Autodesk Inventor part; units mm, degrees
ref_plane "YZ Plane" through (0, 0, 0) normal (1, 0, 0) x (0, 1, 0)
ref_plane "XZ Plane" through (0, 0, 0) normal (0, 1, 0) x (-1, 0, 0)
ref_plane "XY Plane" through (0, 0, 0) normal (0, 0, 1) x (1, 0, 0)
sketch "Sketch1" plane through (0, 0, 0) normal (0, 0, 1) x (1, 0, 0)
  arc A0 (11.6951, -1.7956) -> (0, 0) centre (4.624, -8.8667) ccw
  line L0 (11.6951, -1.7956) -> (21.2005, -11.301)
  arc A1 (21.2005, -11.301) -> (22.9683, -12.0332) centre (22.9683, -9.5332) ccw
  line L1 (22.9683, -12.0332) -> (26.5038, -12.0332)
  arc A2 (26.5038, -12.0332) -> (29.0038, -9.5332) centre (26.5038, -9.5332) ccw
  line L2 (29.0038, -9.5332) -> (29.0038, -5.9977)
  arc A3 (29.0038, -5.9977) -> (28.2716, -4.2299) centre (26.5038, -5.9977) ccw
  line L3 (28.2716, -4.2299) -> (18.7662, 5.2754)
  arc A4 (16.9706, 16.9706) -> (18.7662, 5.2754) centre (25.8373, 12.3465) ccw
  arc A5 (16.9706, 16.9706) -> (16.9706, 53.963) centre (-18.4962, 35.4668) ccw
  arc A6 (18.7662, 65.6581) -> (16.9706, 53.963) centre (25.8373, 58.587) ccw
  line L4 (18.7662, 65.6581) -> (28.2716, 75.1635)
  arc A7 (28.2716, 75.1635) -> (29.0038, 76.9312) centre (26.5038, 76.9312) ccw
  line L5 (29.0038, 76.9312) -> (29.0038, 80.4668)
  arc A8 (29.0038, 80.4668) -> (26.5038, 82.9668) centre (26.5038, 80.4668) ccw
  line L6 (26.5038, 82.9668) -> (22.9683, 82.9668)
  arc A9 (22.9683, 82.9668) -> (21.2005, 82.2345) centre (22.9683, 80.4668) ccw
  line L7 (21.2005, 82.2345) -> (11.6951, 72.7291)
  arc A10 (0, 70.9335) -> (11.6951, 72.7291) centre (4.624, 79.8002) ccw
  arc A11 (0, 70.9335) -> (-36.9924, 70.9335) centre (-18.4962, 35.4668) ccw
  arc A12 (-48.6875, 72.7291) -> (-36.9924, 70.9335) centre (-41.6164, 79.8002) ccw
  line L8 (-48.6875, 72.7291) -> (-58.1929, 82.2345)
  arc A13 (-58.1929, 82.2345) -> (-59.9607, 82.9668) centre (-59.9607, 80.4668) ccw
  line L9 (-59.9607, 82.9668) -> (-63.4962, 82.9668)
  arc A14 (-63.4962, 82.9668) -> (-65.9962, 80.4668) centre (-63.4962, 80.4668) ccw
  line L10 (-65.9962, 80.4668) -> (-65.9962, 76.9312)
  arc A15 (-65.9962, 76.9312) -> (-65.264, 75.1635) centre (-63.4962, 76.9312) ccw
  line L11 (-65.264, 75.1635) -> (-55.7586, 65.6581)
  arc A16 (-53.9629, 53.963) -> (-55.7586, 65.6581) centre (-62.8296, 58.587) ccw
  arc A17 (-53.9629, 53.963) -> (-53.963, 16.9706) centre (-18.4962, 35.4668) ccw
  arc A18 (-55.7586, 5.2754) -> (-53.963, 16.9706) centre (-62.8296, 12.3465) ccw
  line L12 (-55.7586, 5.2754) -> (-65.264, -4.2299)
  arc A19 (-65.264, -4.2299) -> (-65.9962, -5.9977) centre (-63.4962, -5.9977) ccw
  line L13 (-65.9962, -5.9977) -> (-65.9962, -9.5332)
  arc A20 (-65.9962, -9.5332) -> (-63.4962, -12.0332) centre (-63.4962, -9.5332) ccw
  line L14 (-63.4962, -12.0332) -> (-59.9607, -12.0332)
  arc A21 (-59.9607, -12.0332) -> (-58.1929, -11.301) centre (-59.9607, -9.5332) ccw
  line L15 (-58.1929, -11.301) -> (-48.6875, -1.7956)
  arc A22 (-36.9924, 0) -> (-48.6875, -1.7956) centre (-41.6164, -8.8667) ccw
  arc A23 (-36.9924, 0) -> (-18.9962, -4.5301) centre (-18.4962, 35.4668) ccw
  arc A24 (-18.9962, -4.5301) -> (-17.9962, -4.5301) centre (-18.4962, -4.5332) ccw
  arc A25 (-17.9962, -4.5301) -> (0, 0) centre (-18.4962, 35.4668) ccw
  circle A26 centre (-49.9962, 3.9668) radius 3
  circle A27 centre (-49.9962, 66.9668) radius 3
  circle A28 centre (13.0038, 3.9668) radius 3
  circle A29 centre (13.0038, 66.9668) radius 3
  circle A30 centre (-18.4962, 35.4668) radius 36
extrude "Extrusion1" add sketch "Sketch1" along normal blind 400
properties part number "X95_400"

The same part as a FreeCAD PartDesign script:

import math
import FreeCAD as App
import Part
import Sketcher

V = App.Vector
Q = App.Units.Quantity

doc = App.newDocument("Part")
body = doc.addObject("PartDesign::Body", "Body")

sketch1 = body.newObject("Sketcher::SketchObject", "Sketch")
sketch1.AttachmentSupport = (doc.getObject("XY_Plane"), [""])
sketch1.MapMode = "FlatFace"
sketch1.addGeometry([
    Part.ArcOfCircle(Part.Circle(V(4.6, -8.9, 0), V(0, 0, 1), 10), math.radians(45), math.radians(118)),
    Part.LineSegment(V(11.7, -1.8, 0), V(21.2, -11.3, 0)),
    Part.ArcOfCircle(Part.Circle(V(23, -9.5, 0), V(0, 0, 1), 2.5), math.radians(-135), math.radians(-90)),
    Part.LineSegment(V(23, -12, 0), V(26.5, -12, 0)),
    Part.ArcOfCircle(Part.Circle(V(26.5, -9.5, 0), V(0, 0, 1), 2.5), math.radians(-90), math.radians(0)),
    Part.LineSegment(V(29, -9.5, 0), V(29, -6, 0)),
    Part.ArcOfCircle(Part.Circle(V(26.5, -6, 0), V(0, 0, 1), 2.5), math.radians(0), math.radians(45)),
    Part.LineSegment(V(28.3, -4.2, 0), V(18.8, 5.3, 0)),
    Part.ArcOfCircle(Part.Circle(V(25.8, 12.3, 0), V(0, 0, 1), 10), math.radians(152), math.radians(225)),
    Part.ArcOfCircle(Part.Circle(V(-18.5, 35.5, 0), V(0, 0, 1), 40), math.radians(-28), math.radians(28)),
    Part.ArcOfCircle(Part.Circle(V(25.8, 58.6, 0), V(0, 0, 1), 10), math.radians(135), math.radians(208)),
    Part.LineSegment(V(18.8, 65.7, 0), V(28.3, 75.2, 0)),
    Part.ArcOfCircle(Part.Circle(V(26.5, 76.9, 0), V(0, 0, 1), 2.5), math.radians(-45), math.radians(0)),
    Part.LineSegment(V(29, 76.9, 0), V(29, 80.5, 0)),
    Part.ArcOfCircle(Part.Circle(V(26.5, 80.5, 0), V(0, 0, 1), 2.5), math.radians(0), math.radians(90)),
    Part.LineSegment(V(26.5, 83, 0), V(23, 83, 0)),
    Part.ArcOfCircle(Part.Circle(V(23, 80.5, 0), V(0, 0, 1), 2.5), math.radians(90), math.radians(135)),
    Part.LineSegment(V(21.2, 82.2, 0), V(11.7, 72.7, 0)),
    Part.ArcOfCircle(Part.Circle(V(4.6, 79.8, 0), V(0, 0, 1), 10), math.radians(-118), math.radians(-45)),
    Part.ArcOfCircle(Part.Circle(V(-18.5, 35.5, 0), V(0, 0, 1), 40), math.radians(62), math.radians(118)),
    Part.ArcOfCircle(Part.Circle(V(-41.6, 79.8, 0), V(0, 0, 1), 10), math.radians(-135), math.radians(-62)),
    Part.LineSegment(V(-48.7, 72.7, 0), V(-58.2, 82.2, 0)),
    Part.ArcOfCircle(Part.Circle(V(-60, 80.5, 0), V(0, 0, 1), 2.5), math.radians(45), math.radians(90)),
    Part.LineSegment(V(-60, 83, 0), V(-63.5, 83, 0)),
    Part.ArcOfCircle(Part.Circle(V(-63.5, 80.5, 0), V(0, 0, 1), 2.5), math.radians(90), math.radians(180)),
    Part.LineSegment(V(-66, 80.5, 0), V(-66, 76.9, 0)),
    Part.ArcOfCircle(Part.Circle(V(-63.5, 76.9, 0), V(0, 0, 1), 2.5), math.radians(180), math.radians(225)),
    Part.LineSegment(V(-65.3, 75.2, 0), V(-55.8, 65.7, 0)),
    Part.ArcOfCircle(Part.Circle(V(-62.8, 58.6, 0), V(0, 0, 1), 10), math.radians(-28), math.radians(45)),
    Part.ArcOfCircle(Part.Circle(V(-18.5, 35.5, 0), V(0, 0, 1), 40), math.radians(152), math.radians(208)),
    Part.ArcOfCircle(Part.Circle(V(-62.8, 12.3, 0), V(0, 0, 1), 10), math.radians(-45), math.radians(28)),
    Part.LineSegment(V(-55.8, 5.3, 0), V(-65.3, -4.2, 0)),
    Part.ArcOfCircle(Part.Circle(V(-63.5, -6, 0), V(0, 0, 1), 2.5), math.radians(135), math.radians(180)),
    Part.LineSegment(V(-66, -6, 0), V(-66, -9.5, 0)),
    Part.ArcOfCircle(Part.Circle(V(-63.5, -9.5, 0), V(0, 0, 1), 2.5), math.radians(180), math.radians(270)),
    Part.LineSegment(V(-63.5, -12, 0), V(-60, -12, 0)),
    Part.ArcOfCircle(Part.Circle(V(-60, -9.5, 0), V(0, 0, 1), 2.5), math.radians(-90), math.radians(-45)),
    Part.LineSegment(V(-58.2, -11.3, 0), V(-48.7, -1.8, 0)),
    Part.ArcOfCircle(Part.Circle(V(-41.6, -8.9, 0), V(0, 0, 1), 10), math.radians(62), math.radians(135)),
    Part.ArcOfCircle(Part.Circle(V(-18.5, 35.5, 0), V(0, 0, 1), 40), math.radians(-118), math.radians(-91)),
    Part.ArcOfCircle(Part.Circle(V(-18.5, -4.5, 0), V(0, 0, 1), 0.5), math.radians(180), math.radians(360)),
    Part.ArcOfCircle(Part.Circle(V(-18.5, 35.5, 0), V(0, 0, 1), 40), math.radians(-89), math.radians(-62)),
    Part.Circle(V(-50, 4, 0), V(0, 0, 1), 3),
    Part.Circle(V(13, 4, 0), V(0, 0, 1), 3),
    Part.Circle(V(-50, 67, 0), V(0, 0, 1), 3),
    Part.Circle(V(-18.5, 35.5, 0), V(0, 0, 1), 36),
    Part.Circle(V(13, 67, 0), V(0, 0, 1), 3),
], False)
sketch1.addConstraint([
    Sketcher.Constraint("Tangent", 0, 1, 1, 1),
    Sketcher.Constraint("Tangent", 1, 2, 2, 1),
    Sketcher.Constraint("Tangent", 2, 2, 3, 1),
    Sketcher.Constraint("Tangent", 3, 2, 4, 1),
    Sketcher.Constraint("Tangent", 4, 2, 5, 1),
    Sketcher.Constraint("Tangent", 5, 2, 6, 1),
    Sketcher.Constraint("Tangent", 6, 2, 7, 1),
    Sketcher.Constraint("Tangent", 7, 2, 8, 2),
    Sketcher.Constraint("Tangent", 8, 1, 9, 1),
    Sketcher.Constraint("Tangent", 9, 2, 10, 2),
    Sketcher.Constraint("Tangent", 10, 1, 11, 1),
    Sketcher.Constraint("Tangent", 11, 2, 12, 1),
    Sketcher.Constraint("Tangent", 12, 2, 13, 1),
    Sketcher.Constraint("Tangent", 13, 2, 14, 1),
    Sketcher.Constraint("Tangent", 14, 2, 15, 1),
    Sketcher.Constraint("Tangent", 15, 2, 16, 1),
    Sketcher.Constraint("Tangent", 16, 2, 17, 1),
    Sketcher.Constraint("Tangent", 17, 2, 18, 2),
    Sketcher.Constraint("Tangent", 18, 1, 19, 1),
    Sketcher.Constraint("Tangent", 19, 2, 20, 2),
    Sketcher.Constraint("Tangent", 20, 1, 21, 1),
    Sketcher.Constraint("Tangent", 21, 2, 22, 1),
    Sketcher.Constraint("Tangent", 22, 2, 23, 1),
    Sketcher.Constraint("Tangent", 23, 2, 24, 1),
    Sketcher.Constraint("Tangent", 24, 2, 25, 1),
    Sketcher.Constraint("Tangent", 25, 2, 26, 1),
    Sketcher.Constraint("Tangent", 26, 2, 27, 1),
    Sketcher.Constraint("Tangent", 27, 2, 28, 2),
    Sketcher.Constraint("Tangent", 28, 1, 29, 1),
    Sketcher.Constraint("Tangent", 29, 2, 30, 2),
    Sketcher.Constraint("Tangent", 30, 1, 31, 1),
    Sketcher.Constraint("Tangent", 31, 2, 32, 1),
    Sketcher.Constraint("Tangent", 32, 2, 33, 1),
    Sketcher.Constraint("Tangent", 33, 2, 34, 1),
    Sketcher.Constraint("Tangent", 34, 2, 35, 1),
    Sketcher.Constraint("Tangent", 35, 2, 36, 1),
    Sketcher.Constraint("Tangent", 36, 2, 37, 1),
    Sketcher.Constraint("Tangent", 37, 2, 38, 2),
    Sketcher.Constraint("Tangent", 38, 1, 39, 1),
    Sketcher.Constraint("Coincident", 39, 2, 40, 1),
    Sketcher.Constraint("Coincident", 40, 2, 41, 1),
    Sketcher.Constraint("Tangent", 41, 2, 0, 2),
    Sketcher.Constraint("Horizontal", 3),
    Sketcher.Constraint("Vertical", 5),
    Sketcher.Constraint("Vertical", 13),
    Sketcher.Constraint("Horizontal", 15),
    Sketcher.Constraint("Horizontal", 23),
    Sketcher.Constraint("Vertical", 25),
    Sketcher.Constraint("Vertical", 33),
    Sketcher.Constraint("Horizontal", 35),
    Sketcher.Constraint("Coincident", 41, 2, -1, 1),
    Sketcher.Constraint("Coincident", 19, 3, 9, 3),
    Sketcher.Constraint("Coincident", 29, 3, 9, 3),
    Sketcher.Constraint("Coincident", 39, 3, 9, 3),
    Sketcher.Constraint("Coincident", 41, 3, 9, 3),
    Sketcher.Constraint("Coincident", 45, 3, 9, 3),
    Sketcher.Constraint("Equal", 2, 4),
    Sketcher.Constraint("Equal", 4, 6),
    Sketcher.Constraint("Equal", 0, 8),
    Sketcher.Constraint("Equal", 8, 10),
    Sketcher.Constraint("Equal", 6, 12),
    Sketcher.Constraint("Equal", 12, 14),
    Sketcher.Constraint("Equal", 14, 16),
    Sketcher.Constraint("Equal", 10, 18),
    Sketcher.Constraint("Equal", 9, 19),
    Sketcher.Constraint("Equal", 18, 20),
    Sketcher.Constraint("Equal", 16, 22),
    Sketcher.Constraint("Equal", 22, 24),
    Sketcher.Constraint("Equal", 24, 26),
    Sketcher.Constraint("Equal", 20, 28),
    Sketcher.Constraint("Equal", 19, 29),
    Sketcher.Constraint("Equal", 28, 30),
    Sketcher.Constraint("Equal", 26, 32),
    Sketcher.Constraint("Equal", 32, 34),
    Sketcher.Constraint("Equal", 34, 36),
    Sketcher.Constraint("Equal", 30, 38),
    Sketcher.Constraint("Equal", 29, 39),
    Sketcher.Constraint("Equal", 39, 41),
    Sketcher.Constraint("Equal", 42, 43),
    Sketcher.Constraint("Equal", 43, 44),
    Sketcher.Constraint("Equal", 44, 46),
    Sketcher.Constraint("PointOnObject", 18, 1, -2),
    Sketcher.Constraint("PointOnObject", 38, 1, -1),
    Sketcher.Constraint("Parallel", 1, 7),
    Sketcher.Constraint("Perpendicular", 7, 11),
    Sketcher.Constraint("Parallel", 11, 17),
    Sketcher.Constraint("Perpendicular", 17, 21),
    Sketcher.Constraint("Parallel", 21, 27),
    Sketcher.Constraint("Perpendicular", 27, 31),
    Sketcher.Constraint("Parallel", 31, 37),
    Sketcher.Constraint("Horizontal", 18, 3, 20, 3),
    Sketcher.Constraint("Horizontal", 16, 3, 22, 3),
    Sketcher.Constraint("Horizontal", 12, 3, 26, 3),
    Sketcher.Constraint("Horizontal", 10, 3, 28, 3),
    Sketcher.Constraint("Horizontal", 8, 3, 30, 3),
    Sketcher.Constraint("Horizontal", 6, 3, 32, 3),
    Sketcher.Constraint("Horizontal", 4, 3, 34, 3),
    Sketcher.Constraint("Horizontal", 42, 3, 43, 3),
    Sketcher.Constraint("Horizontal", 44, 3, 46, 3),
    Sketcher.Constraint("Horizontal", 17, 2, 20, 1),
    Sketcher.Constraint("Horizontal", 39, 2, 40, 2),
    Sketcher.Constraint("Vertical", 8, 3, 10, 3),
    Sketcher.Constraint("Vertical", 6, 3, 12, 3),
    Sketcher.Constraint("Vertical", 2, 3, 16, 3),
    Sketcher.Constraint("Vertical", 42, 3, 44, 3),
    Sketcher.Constraint("Vertical", 43, 3, 46, 3),
    Sketcher.Constraint("Equal", 35, 5),
    Sketcher.Constraint("Equal", 1, 7),
    Sketcher.Constraint("Diameter", 42, Q("6 mm")),
    Sketcher.Constraint("Diameter", 45, Q("72 mm")),
    Sketcher.Constraint("Radius", 0, Q("10 mm")),
    Sketcher.Constraint("Radius", 9, Q("40 mm")),
    Sketcher.Constraint("Radius", 2, Q("2.5 mm")),
    Sketcher.Constraint("Radius", 40, Q("0.5 mm")),
    Sketcher.Constraint("DistanceY", 6, 2, -1, 1, Q("4.23 mm")),
    Sketcher.Constraint("DistanceY", 39, 2, -1, 1, Q("4.53 mm")),
    Sketcher.Constraint("DistanceY", 40, 3, -1, 1, Q("4.5332 mm")),
    Sketcher.Constraint("DistanceX", 42, 3, -1, 1, Q("49.9962 mm")),
    Sketcher.Constraint("DistanceY", -1, 1, 42, 3, Q("3.9668 mm")),
    Sketcher.Constraint("DistanceX", -1, 1, 43, 3, Q("13.0038 mm")),
    Sketcher.Constraint("DistanceY", -1, 1, 44, 3, Q("66.9668 mm")),
])
pad1 = body.newObject("PartDesign::Pad", "Pad")
pad1.Profile = sketch1
pad1.Length = 400

doc.recompute()
